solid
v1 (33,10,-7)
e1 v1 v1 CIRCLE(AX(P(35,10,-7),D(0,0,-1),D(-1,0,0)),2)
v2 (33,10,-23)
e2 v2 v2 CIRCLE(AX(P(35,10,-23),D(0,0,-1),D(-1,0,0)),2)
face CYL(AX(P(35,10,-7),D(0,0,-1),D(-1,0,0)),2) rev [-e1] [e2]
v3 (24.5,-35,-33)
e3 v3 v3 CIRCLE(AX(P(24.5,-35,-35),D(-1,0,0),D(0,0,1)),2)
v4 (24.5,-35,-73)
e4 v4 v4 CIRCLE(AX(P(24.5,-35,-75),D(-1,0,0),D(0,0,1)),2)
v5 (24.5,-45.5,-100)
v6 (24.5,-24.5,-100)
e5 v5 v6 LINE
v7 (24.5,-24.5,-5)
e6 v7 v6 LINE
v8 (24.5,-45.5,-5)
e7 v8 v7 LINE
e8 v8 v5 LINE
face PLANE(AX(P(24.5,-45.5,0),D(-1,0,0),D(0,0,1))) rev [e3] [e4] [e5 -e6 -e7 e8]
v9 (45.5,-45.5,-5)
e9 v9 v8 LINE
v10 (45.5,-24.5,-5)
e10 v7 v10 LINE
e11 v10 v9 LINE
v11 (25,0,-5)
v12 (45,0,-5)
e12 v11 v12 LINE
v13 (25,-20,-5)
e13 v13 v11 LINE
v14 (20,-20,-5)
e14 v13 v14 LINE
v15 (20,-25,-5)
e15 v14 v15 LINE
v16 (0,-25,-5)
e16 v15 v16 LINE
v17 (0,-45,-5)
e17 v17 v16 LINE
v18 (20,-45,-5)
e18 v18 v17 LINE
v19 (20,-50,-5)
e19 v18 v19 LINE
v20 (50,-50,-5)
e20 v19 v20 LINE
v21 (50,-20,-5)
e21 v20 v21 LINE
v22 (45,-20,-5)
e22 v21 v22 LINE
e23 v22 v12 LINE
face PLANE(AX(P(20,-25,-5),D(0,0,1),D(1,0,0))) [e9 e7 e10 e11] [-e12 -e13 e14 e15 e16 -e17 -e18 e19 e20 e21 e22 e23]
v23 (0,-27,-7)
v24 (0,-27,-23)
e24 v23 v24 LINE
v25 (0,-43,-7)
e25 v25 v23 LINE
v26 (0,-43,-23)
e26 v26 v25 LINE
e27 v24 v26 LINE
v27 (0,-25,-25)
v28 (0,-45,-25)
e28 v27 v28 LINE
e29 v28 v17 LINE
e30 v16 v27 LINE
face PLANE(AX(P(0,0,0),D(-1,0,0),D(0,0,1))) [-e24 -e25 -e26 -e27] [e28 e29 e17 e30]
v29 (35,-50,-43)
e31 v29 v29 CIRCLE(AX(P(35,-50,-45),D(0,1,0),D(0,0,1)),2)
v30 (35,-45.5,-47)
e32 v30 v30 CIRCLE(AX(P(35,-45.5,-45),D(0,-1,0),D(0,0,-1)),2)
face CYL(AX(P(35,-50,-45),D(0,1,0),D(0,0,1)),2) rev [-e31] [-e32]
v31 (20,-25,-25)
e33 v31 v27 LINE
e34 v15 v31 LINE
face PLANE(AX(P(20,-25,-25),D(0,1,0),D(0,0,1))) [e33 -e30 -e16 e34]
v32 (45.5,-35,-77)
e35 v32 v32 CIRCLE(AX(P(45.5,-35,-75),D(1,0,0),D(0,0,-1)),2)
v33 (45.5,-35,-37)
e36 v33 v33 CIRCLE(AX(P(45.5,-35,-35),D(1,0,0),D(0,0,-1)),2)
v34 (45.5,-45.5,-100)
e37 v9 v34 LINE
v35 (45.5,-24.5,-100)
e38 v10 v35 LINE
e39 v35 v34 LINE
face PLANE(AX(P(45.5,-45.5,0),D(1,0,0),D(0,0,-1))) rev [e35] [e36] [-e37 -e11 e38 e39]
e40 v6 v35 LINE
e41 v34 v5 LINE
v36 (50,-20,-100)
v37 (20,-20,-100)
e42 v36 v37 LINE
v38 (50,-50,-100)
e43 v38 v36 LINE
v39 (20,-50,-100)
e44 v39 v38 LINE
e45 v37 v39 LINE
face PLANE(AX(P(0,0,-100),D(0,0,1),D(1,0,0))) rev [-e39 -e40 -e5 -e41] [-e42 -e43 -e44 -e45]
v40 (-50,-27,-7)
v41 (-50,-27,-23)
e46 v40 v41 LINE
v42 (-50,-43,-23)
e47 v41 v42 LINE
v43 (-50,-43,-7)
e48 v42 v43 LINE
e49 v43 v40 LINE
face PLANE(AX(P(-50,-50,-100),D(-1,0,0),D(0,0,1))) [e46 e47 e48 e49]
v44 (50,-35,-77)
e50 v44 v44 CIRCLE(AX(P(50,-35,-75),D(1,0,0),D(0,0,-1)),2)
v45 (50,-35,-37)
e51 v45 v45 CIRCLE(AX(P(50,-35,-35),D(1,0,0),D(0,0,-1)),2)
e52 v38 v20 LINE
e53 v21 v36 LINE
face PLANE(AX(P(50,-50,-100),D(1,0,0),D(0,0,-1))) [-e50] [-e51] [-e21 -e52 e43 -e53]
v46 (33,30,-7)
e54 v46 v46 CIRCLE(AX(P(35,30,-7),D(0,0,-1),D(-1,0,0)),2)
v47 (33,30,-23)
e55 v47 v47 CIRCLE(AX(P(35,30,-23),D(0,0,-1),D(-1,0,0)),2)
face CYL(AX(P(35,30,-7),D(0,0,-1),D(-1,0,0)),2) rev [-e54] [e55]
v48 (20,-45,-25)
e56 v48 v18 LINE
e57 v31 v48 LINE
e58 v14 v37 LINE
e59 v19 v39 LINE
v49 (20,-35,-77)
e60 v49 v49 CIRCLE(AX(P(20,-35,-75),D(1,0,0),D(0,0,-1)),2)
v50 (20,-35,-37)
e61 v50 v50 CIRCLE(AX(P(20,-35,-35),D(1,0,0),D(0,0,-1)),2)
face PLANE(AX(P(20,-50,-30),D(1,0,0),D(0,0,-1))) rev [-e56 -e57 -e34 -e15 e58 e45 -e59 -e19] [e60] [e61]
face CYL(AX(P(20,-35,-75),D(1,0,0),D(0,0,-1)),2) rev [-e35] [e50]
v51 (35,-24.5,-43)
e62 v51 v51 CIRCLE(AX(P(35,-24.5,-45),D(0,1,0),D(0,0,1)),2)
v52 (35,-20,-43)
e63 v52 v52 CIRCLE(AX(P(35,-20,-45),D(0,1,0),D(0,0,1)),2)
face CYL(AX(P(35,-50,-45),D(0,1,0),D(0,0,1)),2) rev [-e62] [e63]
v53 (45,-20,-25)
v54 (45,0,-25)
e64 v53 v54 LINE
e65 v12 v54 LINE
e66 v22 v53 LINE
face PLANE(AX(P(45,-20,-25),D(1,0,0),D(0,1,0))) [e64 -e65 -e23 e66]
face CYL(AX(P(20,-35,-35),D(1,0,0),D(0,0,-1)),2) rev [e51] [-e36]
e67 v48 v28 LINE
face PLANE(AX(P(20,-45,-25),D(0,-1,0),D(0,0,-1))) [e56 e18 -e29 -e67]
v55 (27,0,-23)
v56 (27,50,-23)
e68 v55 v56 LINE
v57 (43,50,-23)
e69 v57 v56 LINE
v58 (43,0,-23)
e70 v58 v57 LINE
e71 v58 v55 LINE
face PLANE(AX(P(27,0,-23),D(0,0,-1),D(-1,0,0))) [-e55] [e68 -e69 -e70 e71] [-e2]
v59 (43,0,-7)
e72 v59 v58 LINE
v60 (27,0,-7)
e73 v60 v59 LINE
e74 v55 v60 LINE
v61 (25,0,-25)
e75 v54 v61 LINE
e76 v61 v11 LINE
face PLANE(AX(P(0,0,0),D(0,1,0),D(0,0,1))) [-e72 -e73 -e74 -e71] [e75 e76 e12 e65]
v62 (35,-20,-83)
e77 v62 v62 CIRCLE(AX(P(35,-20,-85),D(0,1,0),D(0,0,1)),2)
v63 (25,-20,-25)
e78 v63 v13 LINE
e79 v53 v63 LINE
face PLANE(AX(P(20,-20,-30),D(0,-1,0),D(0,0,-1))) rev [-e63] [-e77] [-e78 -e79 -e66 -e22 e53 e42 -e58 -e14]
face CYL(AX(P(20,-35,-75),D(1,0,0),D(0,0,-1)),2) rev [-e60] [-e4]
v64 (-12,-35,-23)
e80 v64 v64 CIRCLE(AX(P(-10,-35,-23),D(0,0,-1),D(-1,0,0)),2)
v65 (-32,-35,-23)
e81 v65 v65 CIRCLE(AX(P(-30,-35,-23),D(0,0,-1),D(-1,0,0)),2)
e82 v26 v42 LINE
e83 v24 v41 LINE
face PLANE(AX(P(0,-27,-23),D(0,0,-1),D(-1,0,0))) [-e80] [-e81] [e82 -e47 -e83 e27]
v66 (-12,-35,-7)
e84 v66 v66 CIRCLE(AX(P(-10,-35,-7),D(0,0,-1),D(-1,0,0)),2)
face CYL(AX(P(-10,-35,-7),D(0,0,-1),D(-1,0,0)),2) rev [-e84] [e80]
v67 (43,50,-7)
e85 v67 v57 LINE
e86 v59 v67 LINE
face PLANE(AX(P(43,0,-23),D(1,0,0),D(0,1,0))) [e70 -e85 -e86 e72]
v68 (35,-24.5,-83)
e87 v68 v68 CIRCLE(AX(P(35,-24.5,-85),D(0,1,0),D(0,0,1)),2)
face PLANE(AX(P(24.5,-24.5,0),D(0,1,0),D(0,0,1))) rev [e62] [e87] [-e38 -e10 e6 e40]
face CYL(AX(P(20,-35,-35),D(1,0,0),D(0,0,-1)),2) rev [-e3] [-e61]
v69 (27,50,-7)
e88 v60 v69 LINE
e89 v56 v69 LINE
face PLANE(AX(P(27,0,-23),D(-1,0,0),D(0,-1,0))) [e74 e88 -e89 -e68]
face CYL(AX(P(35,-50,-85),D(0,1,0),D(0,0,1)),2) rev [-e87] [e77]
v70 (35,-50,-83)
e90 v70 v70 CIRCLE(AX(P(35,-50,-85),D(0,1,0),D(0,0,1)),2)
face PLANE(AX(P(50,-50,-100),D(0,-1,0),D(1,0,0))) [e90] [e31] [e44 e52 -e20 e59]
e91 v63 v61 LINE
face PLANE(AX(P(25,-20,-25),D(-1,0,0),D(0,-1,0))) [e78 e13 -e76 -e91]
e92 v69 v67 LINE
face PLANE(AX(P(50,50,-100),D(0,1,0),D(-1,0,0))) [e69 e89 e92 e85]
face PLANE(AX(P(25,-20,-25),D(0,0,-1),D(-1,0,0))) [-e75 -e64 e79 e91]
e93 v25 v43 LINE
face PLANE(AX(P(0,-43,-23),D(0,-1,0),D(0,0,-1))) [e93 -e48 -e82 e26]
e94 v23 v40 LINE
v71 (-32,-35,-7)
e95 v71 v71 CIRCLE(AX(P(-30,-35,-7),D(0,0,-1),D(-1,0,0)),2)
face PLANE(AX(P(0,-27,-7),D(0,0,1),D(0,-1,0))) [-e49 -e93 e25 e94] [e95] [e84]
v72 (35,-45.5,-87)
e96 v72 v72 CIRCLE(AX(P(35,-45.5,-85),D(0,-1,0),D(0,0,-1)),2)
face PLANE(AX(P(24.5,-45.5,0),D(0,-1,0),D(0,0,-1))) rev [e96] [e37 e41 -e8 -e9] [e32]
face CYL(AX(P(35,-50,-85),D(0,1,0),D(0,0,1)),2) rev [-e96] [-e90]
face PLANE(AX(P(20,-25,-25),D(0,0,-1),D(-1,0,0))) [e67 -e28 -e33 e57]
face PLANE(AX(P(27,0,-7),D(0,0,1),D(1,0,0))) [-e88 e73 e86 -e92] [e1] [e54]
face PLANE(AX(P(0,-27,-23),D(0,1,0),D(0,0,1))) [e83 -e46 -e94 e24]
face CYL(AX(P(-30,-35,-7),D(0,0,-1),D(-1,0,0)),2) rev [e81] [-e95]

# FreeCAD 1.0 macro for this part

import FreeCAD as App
import Part
import Sketcher
from FreeCAD import Vector


def add_polygon(sketch, points):
    """Adds a closed chain of lines whose ends are joined by coincident constraints."""
    first, n = sketch.GeometryCount, len(points)
    for a, b in zip(points, points[1:] + points[:1]):
        sketch.addGeometry(Part.LineSegment(App.Vector(*a, 0), App.Vector(*b, 0)), False)
    for i in range(n):
        sketch.addConstraint(Sketcher.Constraint("Coincident", first + i, 2, first + (i + 1) % n, 1))

doc = App.newDocument("Part")
body = doc.addObject("PartDesign::Body", "Body")

sketch1 = body.newObject("Sketcher::SketchObject", "Sketch")
sketch1.AttachmentSupport = (doc.getObject("XY_Plane"), [""])
sketch1.MapMode = "FlatFace"
add_polygon(sketch1, [(-50, 50), (-50, -50), (50, -50), (50, 50)])
sketch1.addConstraint(Sketcher.Constraint("Vertical", 0))
sketch1.addConstraint(Sketcher.Constraint("Horizontal", 1))
sketch1.addConstraint(Sketcher.Constraint("Vertical", 2))
sketch1.addConstraint(Sketcher.Constraint("Horizontal", 3))
sketch1.addConstraint(Sketcher.Constraint("Symmetric", 0, 2, 2, 2, -1, 1))
sketch1.addConstraint(Sketcher.Constraint("Equal", 3, 0))
sketch1.addConstraint(Sketcher.Constraint("DistanceX", 1, 1, 1, 2, 100.0))
pad1 = body.newObject("PartDesign::Pad", "Pad")
pad1.Profile = sketch1
pad1.Length = 100
pad1.Reversed = True

sketch2 = body.newObject("Sketcher::SketchObject", "Sketch001")
sketch2.AttachmentSupport = (doc.getObject("XY_Plane"), [""])
sketch2.MapMode = "FlatFace"
sketch2.AttachmentOffset = App.Placement(Vector(0, 0, -100), App.Rotation())
add_polygon(sketch2, [(-50, -50), (-50, 50), (50, 50), (50, -20), (20, -20), (20, -50)])
sketch2.addConstraint(Sketcher.Constraint("Vertical", 0))
sketch2.addConstraint(Sketcher.Constraint("Horizontal", 1))
sketch2.addConstraint(Sketcher.Constraint("Vertical", 2))
sketch2.addConstraint(Sketcher.Constraint("Horizontal", 3))
sketch2.addConstraint(Sketcher.Constraint("Vertical", 4))
sketch2.addConstraint(Sketcher.Constraint("Horizontal", 5))
sketch2.addConstraint(Sketcher.Constraint("Symmetric", 1, 2, 5, 2, -1, 1))
sketch2.addConstraint(Sketcher.Constraint("Equal", 1, 0))
sketch2.addConstraint(Sketcher.Constraint("Equal", 5, 2))
sketch2.addConstraint(Sketcher.Constraint("DistanceX", 1, 1, 1, 2, 100.0))
sketch2.addConstraint(Sketcher.Constraint("DistanceX", 3, 2, 3, 1, 30.0))
pocket1 = body.newObject("PartDesign::Pocket", "Pocket")
pocket1.Profile = sketch2
pocket1.Length = 70
pocket1.Reversed = True

sketch3 = body.newObject("Sketcher::SketchObject", "Sketch002")
sketch3.AttachmentSupport = (doc.getObject("XY_Plane"), [""])
sketch3.MapMode = "FlatFace"
sketch3.AttachmentOffset = App.Placement(Vector(0, 0, -30), App.Rotation())
add_polygon(sketch3, [(20, 50), (20, -20), (-50, -20), (-50, 50)])
sketch3.addConstraint(Sketcher.Constraint("Vertical", 0))
sketch3.addConstraint(Sketcher.Constraint("Horizontal", 1))
sketch3.addConstraint(Sketcher.Constraint("Vertical", 2))
sketch3.addConstraint(Sketcher.Constraint("Horizontal", 3))
sketch3.addConstraint(Sketcher.Constraint("Equal", 3, 0))
sketch3.addConstraint(Sketcher.Constraint("DistanceX", 1, 2, 1, 1, 70.0))
sketch3.addConstraint(Sketcher.Constraint("DistanceX", -1, 1, 0, 2, 20.0))
sketch3.addConstraint(Sketcher.Constraint("DistanceY", 0, 2, -1, 1, 20.0))
pocket2 = body.newObject("PartDesign::Pocket", "Pocket001")
pocket2.Profile = sketch3
pocket2.Length = 30
pocket2.Reversed = True

sketch4 = body.newObject("Sketcher::SketchObject", "Sketch003")
sketch4.AttachmentSupport = (doc.getObject("XY_Plane"), [""])
sketch4.MapMode = "FlatFace"
sketch4.AttachmentOffset = App.Placement(Vector(0, 0, -100), App.Rotation())
add_polygon(sketch4, [(46, -24), (46, -46), (24, -46), (24, -24)])
sketch4.addConstraint(Sketcher.Constraint("Vertical", 0))
sketch4.addConstraint(Sketcher.Constraint("Horizontal", 1))
sketch4.addConstraint(Sketcher.Constraint("Vertical", 2))
sketch4.addConstraint(Sketcher.Constraint("Horizontal", 3))
sketch4.addConstraint(Sketcher.Constraint("Equal", 3, 0))
sketch4.addConstraint(Sketcher.Constraint("DistanceX", 1, 2, 1, 1, 21.0))
sketch4.addConstraint(Sketcher.Constraint("DistanceX", -1, 1, 0, 2, 45.5))
sketch4.addConstraint(Sketcher.Constraint("DistanceY", 0, 2, -1, 1, 45.5))
pocket3 = body.newObject("PartDesign::Pocket", "Pocket002")
pocket3.Profile = sketch4
pocket3.Length = 100
pocket3.Reversed = True

sketch5 = body.newObject("Sketcher::SketchObject", "Sketch004")
sketch5.AttachmentSupport = (doc.getObject("YZ_Plane"), [""])
sketch5.MapMode = "FlatFace"
sketch5.AttachmentOffset = App.Placement(Vector(0, 0, -50), App.Rotation())
add_polygon(sketch5, [(-20, -30), (-50, -30), (-50, 0), (-20, 0)])
add_polygon(sketch5, [(-43, -7), (-43, -23), (-27, -23), (-27, -7)])
sketch5.addConstraint(Sketcher.Constraint("Horizontal", 0))
sketch5.addConstraint(Sketcher.Constraint("Vertical", 1))
sketch5.addConstraint(Sketcher.Constraint("Horizontal", 2))
sketch5.addConstraint(Sketcher.Constraint("Vertical", 3))
sketch5.addConstraint(Sketcher.Constraint("Vertical", 4))
sketch5.addConstraint(Sketcher.Constraint("Horizontal", 5))
sketch5.addConstraint(Sketcher.Constraint("Vertical", 6))
sketch5.addConstraint(Sketcher.Constraint("Horizontal", 7))
sketch5.addConstraint(Sketcher.Constraint("PointOnObject", 1, 2, -1))
sketch5.addConstraint(Sketcher.Constraint("Equal", 2, 1))
sketch5.addConstraint(Sketcher.Constraint("Equal", 7, 4))
sketch5.addConstraint(Sketcher.Constraint("DistanceX", 0, 2, 0, 1, 30.0))
sketch5.addConstraint(Sketcher.Constraint("DistanceX", 5, 1, 5, 2, 16.0))
sketch5.addConstraint(Sketcher.Constraint("DistanceX", 0, 2, -1, 1, 50.0))
sketch5.addConstraint(Sketcher.Constraint("DistanceX", 4, 2, -1, 1, 43.0))
sketch5.addConstraint(Sketcher.Constraint("DistanceY", 4, 2, -1, 1, 23.0))
pocket4 = body.newObject("PartDesign::Pocket", "Pocket003")
pocket4.Profile = sketch5
pocket4.Length = 50
pocket4.Reversed = True

sketch6 = body.newObject("Sketcher::SketchObject", "Sketch005")
sketch6.AttachmentSupport = (doc.getObject("YZ_Plane"), [""])
sketch6.MapMode = "FlatFace"
add_polygon(sketch6, [(-20, -30), (-50, -30), (-50, 0), (-20, 0)])
add_polygon(sketch6, [(-45, -5), (-45, -25), (-25, -25), (-25, -5)])
sketch6.addConstraint(Sketcher.Constraint("Horizontal", 0))
sketch6.addConstraint(Sketcher.Constraint("Vertical", 1))
sketch6.addConstraint(Sketcher.Constraint("Horizontal", 2))
sketch6.addConstraint(Sketcher.Constraint("Vertical", 3))
sketch6.addConstraint(Sketcher.Constraint("Vertical", 4))
sketch6.addConstraint(Sketcher.Constraint("Horizontal", 5))
sketch6.addConstraint(Sketcher.Constraint("Vertical", 6))
sketch6.addConstraint(Sketcher.Constraint("Horizontal", 7))
sketch6.addConstraint(Sketcher.Constraint("PointOnObject", 1, 2, -1))
sketch6.addConstraint(Sketcher.Constraint("Equal", 2, 1))
sketch6.addConstraint(Sketcher.Constraint("Equal", 7, 4))
sketch6.addConstraint(Sketcher.Constraint("DistanceX", 0, 2, 0, 1, 30.0))
sketch6.addConstraint(Sketcher.Constraint("DistanceX", 5, 1, 5, 2, 20.0))
sketch6.addConstraint(Sketcher.Constraint("DistanceX", 0, 2, -1, 1, 50.0))
sketch6.addConstraint(Sketcher.Constraint("DistanceX", 4, 2, -1, 1, 45.0))
sketch6.addConstraint(Sketcher.Constraint("DistanceY", 4, 2, -1, 1, 25.0))
pocket5 = body.newObject("PartDesign::Pocket", "Pocket004")
pocket5.Profile = sketch6
pocket5.Length = 20
pocket5.Reversed = True

sketch7 = body.newObject("Sketcher::SketchObject", "Sketch006")
sketch7.AttachmentSupport = (doc.getObject("XZ_Plane"), [""])
sketch7.MapMode = "FlatFace"
sketch7.AttachmentOffset = App.Placement(Vector(0, 0, -50), App.Rotation())
add_polygon(sketch7, [(20, -30), (20, 0), (50, 0), (50, -30)])
add_polygon(sketch7, [(45, -5), (25, -5), (25, -25), (45, -25)])
sketch7.addConstraint(Sketcher.Constraint("Vertical", 0))
sketch7.addConstraint(Sketcher.Constraint("Horizontal", 1))
sketch7.addConstraint(Sketcher.Constraint("Vertical", 2))
sketch7.addConstraint(Sketcher.Constraint("Horizontal", 3))
sketch7.addConstraint(Sketcher.Constraint("Horizontal", 4))
sketch7.addConstraint(Sketcher.Constraint("Vertical", 5))
sketch7.addConstraint(Sketcher.Constraint("Horizontal", 6))
sketch7.addConstraint(Sketcher.Constraint("Vertical", 7))
sketch7.addConstraint(Sketcher.Constraint("PointOnObject", 0, 2, -1))
sketch7.addConstraint(Sketcher.Constraint("Equal", 3, 0))
sketch7.addConstraint(Sketcher.Constraint("Equal", 6, 5))
sketch7.addConstraint(Sketcher.Constraint("DistanceX", 1, 1, 1, 2, 30.0))
sketch7.addConstraint(Sketcher.Constraint("DistanceX", 4, 2, 4, 1, 20.0))
sketch7.addConstraint(Sketcher.Constraint("DistanceX", -1, 1, 0, 2, 20.0))
sketch7.addConstraint(Sketcher.Constraint("DistanceX", -1, 1, 4, 2, 25.0))
sketch7.addConstraint(Sketcher.Constraint("DistanceY", 4, 2, -1, 1, 5.0))
pocket6 = body.newObject("PartDesign::Pocket", "Pocket005")
pocket6.Profile = sketch7
pocket6.Length = 70
pocket6.Reversed = True

sketch8 = body.newObject("Sketcher::SketchObject", "Sketch007")
sketch8.AttachmentSupport = (doc.getObject("XZ_Plane"), [""])
sketch8.MapMode = "FlatFace"
sketch8.AttachmentOffset = App.Placement(Vector(0, 0, -50), App.Rotation())
add_polygon(sketch8, [(25, -25), (25, -5), (45, -5), (45, -25)])
add_polygon(sketch8, [(43, -7), (27, -7), (27, -23), (43, -23)])
sketch8.addConstraint(Sketcher.Constraint("Vertical", 0))
sketch8.addConstraint(Sketcher.Constraint("Horizontal", 1))
sketch8.addConstraint(Sketcher.Constraint("Vertical", 2))
sketch8.addConstraint(Sketcher.Constraint("Horizontal", 3))
sketch8.addConstraint(Sketcher.Constraint("Horizontal", 4))
sketch8.addConstraint(Sketcher.Constraint("Vertical", 5))
sketch8.addConstraint(Sketcher.Constraint("Horizontal", 6))
sketch8.addConstraint(Sketcher.Constraint("Vertical", 7))
sketch8.addConstraint(Sketcher.Constraint("Equal", 3, 0))
sketch8.addConstraint(Sketcher.Constraint("Equal", 6, 5))
sketch8.addConstraint(Sketcher.Constraint("DistanceX", 1, 1, 1, 2, 20.0))
sketch8.addConstraint(Sketcher.Constraint("DistanceX", 4, 2, 4, 1, 16.0))
sketch8.addConstraint(Sketcher.Constraint("DistanceX", -1, 1, 0, 2, 25.0))
sketch8.addConstraint(Sketcher.Constraint("DistanceY", 0, 2, -1, 1, 5.0))
sketch8.addConstraint(Sketcher.Constraint("DistanceX", -1, 1, 4, 2, 27.0))
sketch8.addConstraint(Sketcher.Constraint("DistanceY", 4, 2, -1, 1, 7.0))
pocket7 = body.newObject("PartDesign::Pocket", "Pocket006")
pocket7.Profile = sketch8
pocket7.Length = 50
pocket7.Reversed = True

sketch9 = body.newObject("Sketcher::SketchObject", "Sketch008")
sketch9.AttachmentSupport = (doc.getObject("XZ_Plane"), [""])
sketch9.MapMode = "FlatFace"
sketch9.AttachmentOffset = App.Placement(Vector(0, 0, 20), App.Rotation())
sketch9.addGeometry(Part.Circle(Vector(35, -85, 0), Vector(0, 0, 1), 2), False)
sketch9.addGeometry(Part.Circle(Vector(35, -45, 0), Vector(0, 0, 1), 2), False)
sketch9.addConstraint(Sketcher.Constraint("Equal", 0, 1))
sketch9.addConstraint(Sketcher.Constraint("Vertical", 0, 3, 1, 3))
sketch9.addConstraint(Sketcher.Constraint("Diameter", 0, 4.0))
sketch9.addConstraint(Sketcher.Constraint("DistanceX", -1, 1, 0, 3, 35.0))
sketch9.addConstraint(Sketcher.Constraint("DistanceY", 0, 3, -1, 1, 85.0))
sketch9.addConstraint(Sketcher.Constraint("DistanceY", 1, 3, -1, 1, 45.0))
pocket8 = body.newObject("PartDesign::Pocket", "Pocket007")
pocket8.Profile = sketch9
pocket8.Length = 30
pocket8.Reversed = True

sketch10 = body.newObject("Sketcher::SketchObject", "Sketch009")
sketch10.AttachmentSupport = (doc.getObject("YZ_Plane"), [""])
sketch10.MapMode = "FlatFace"
sketch10.AttachmentOffset = App.Placement(Vector(0, 0, 50), App.Rotation())
sketch10.addGeometry(Part.Circle(Vector(-35, -75, 0), Vector(0, 0, 1), 2), False)
sketch10.addGeometry(Part.Circle(Vector(-35, -35, 0), Vector(0, 0, 1), 2), False)
sketch10.addConstraint(Sketcher.Constraint("Equal", 0, 1))
sketch10.addConstraint(Sketcher.Constraint("Vertical", 0, 3, 1, 3))
sketch10.addConstraint(Sketcher.Constraint("Diameter", 0, 4.0))
sketch10.addConstraint(Sketcher.Constraint("DistanceX", 0, 3, -1, 1, 35.0))
sketch10.addConstraint(Sketcher.Constraint("DistanceY", 0, 3, -1, 1, 75.0))
sketch10.addConstraint(Sketcher.Constraint("DistanceY", 1, 3, -1, 1, 35.0))
pocket9 = body.newObject("PartDesign::Pocket", "Pocket008")
pocket9.Profile = sketch10
pocket9.Length = 30

sketch11 = body.newObject("Sketcher::SketchObject", "Sketch010")
sketch11.AttachmentSupport = (doc.getObject("XY_Plane"), [""])
sketch11.MapMode = "FlatFace"
sketch11.AttachmentOffset = App.Placement(Vector(0, 0, -23), App.Rotation())
sketch11.addGeometry(Part.Circle(Vector(35, 30, 0), Vector(0, 0, 1), 2), False)
sketch11.addGeometry(Part.Circle(Vector(35, 10, 0), Vector(0, 0, 1), 2), False)
sketch11.addConstraint(Sketcher.Constraint("Equal", 0, 1))
sketch11.addConstraint(Sketcher.Constraint("Vertical", 0, 3, 1, 3))
sketch11.addConstraint(Sketcher.Constraint("Diameter", 0, 4.0))
sketch11.addConstraint(Sketcher.Constraint("DistanceX", -1, 1, 0, 3, 35.0))
sketch11.addConstraint(Sketcher.Constraint("DistanceY", -1, 1, 0, 3, 30.0))
sketch11.addConstraint(Sketcher.Constraint("DistanceY", -1, 1, 1, 3, 10.0))
pocket10 = body.newObject("PartDesign::Pocket", "Pocket009")
pocket10.Profile = sketch11
pocket10.Length = 16
pocket10.Reversed = True

sketch12 = body.newObject("Sketcher::SketchObject", "Sketch011")
sketch12.AttachmentSupport = (doc.getObject("XY_Plane"), [""])
sketch12.MapMode = "FlatFace"
sketch12.AttachmentOffset = App.Placement(Vector(0, 0, -23), App.Rotation())
sketch12.addGeometry(Part.Circle(Vector(-30, -35, 0), Vector(0, 0, 1), 2), False)
sketch12.addGeometry(Part.Circle(Vector(-10, -35, 0), Vector(0, 0, 1), 2), False)
sketch12.addConstraint(Sketcher.Constraint("Equal", 0, 1))
sketch12.addConstraint(Sketcher.Constraint("Horizontal", 0, 3, 1, 3))
sketch12.addConstraint(Sketcher.Constraint("Diameter", 0, 4.0))
sketch12.addConstraint(Sketcher.Constraint("DistanceX", 0, 3, -1, 1, 30.0))
sketch12.addConstraint(Sketcher.Constraint("DistanceY", 0, 3, -1, 1, 35.0))
sketch12.addConstraint(Sketcher.Constraint("DistanceX", 1, 3, -1, 1, 10.0))
pocket11 = body.newObject("PartDesign::Pocket", "Pocket010")
pocket11.Profile = sketch12
pocket11.Length = 16
pocket11.Reversed = True

sketch13 = body.newObject("Sketcher::SketchObject", "Sketch012")
sketch13.AttachmentSupport = (doc.getObject("XY_Plane"), [""])
sketch13.MapMode = "FlatFace"
add_polygon(sketch13, [(20, -20), (20, -50), (50, -50), (50, -20)])
sketch13.addConstraint(Sketcher.Constraint("Vertical", 0))
sketch13.addConstraint(Sketcher.Constraint("Horizontal", 1))
sketch13.addConstraint(Sketcher.Constraint("Vertical", 2))
sketch13.addConstraint(Sketcher.Constraint("Horizontal", 3))
sketch13.addConstraint(Sketcher.Constraint("Equal", 3, 0))
sketch13.addConstraint(Sketcher.Constraint("DistanceX", 1, 1, 1, 2, 30.0))
sketch13.addConstraint(Sketcher.Constraint("DistanceX", -1, 1, 0, 2, 20.0))
sketch13.addConstraint(Sketcher.Constraint("DistanceY", 0, 2, -1, 1, 50.0))
pocket12 = body.newObject("PartDesign::Pocket", "Pocket011")
pocket12.Profile = sketch13
pocket12.Length = 5

doc.recompute()
